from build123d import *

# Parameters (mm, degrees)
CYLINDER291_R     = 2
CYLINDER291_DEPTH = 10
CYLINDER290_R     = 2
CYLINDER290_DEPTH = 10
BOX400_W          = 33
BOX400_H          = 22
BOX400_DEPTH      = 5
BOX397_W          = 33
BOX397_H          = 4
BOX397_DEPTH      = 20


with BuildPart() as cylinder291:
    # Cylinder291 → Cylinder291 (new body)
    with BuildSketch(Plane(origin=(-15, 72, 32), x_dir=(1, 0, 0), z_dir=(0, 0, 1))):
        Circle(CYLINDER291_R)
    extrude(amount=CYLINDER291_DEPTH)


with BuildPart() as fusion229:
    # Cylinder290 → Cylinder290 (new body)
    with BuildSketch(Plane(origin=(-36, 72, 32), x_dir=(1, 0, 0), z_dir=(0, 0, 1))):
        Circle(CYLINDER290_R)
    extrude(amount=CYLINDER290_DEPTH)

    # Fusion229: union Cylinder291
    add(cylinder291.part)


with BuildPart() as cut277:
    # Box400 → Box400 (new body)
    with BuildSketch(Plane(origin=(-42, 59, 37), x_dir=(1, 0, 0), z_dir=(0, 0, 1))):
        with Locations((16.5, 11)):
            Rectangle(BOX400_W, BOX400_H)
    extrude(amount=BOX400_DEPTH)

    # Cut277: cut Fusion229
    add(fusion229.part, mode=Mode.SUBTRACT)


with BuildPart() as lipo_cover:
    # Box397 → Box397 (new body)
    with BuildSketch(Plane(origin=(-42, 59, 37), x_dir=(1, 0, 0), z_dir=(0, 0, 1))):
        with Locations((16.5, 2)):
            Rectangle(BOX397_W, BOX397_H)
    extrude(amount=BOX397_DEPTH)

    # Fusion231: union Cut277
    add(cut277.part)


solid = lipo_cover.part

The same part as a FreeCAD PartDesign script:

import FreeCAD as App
import Part
import Sketcher
Q = App.Units.Quantity


def add_polygon(sketch, points):
    """Adds a closed chain of lines whose ends are joined by coincident constraints."""
    first, n = sketch.GeometryCount, len(points)
    for a, b in zip(points, points[1:] + points[:1]):
        sketch.addGeometry(Part.LineSegment(App.Vector(*a, 0), App.Vector(*b, 0)), False)
    for i in range(n):
        sketch.addConstraint(Sketcher.Constraint("Coincident", first + i, 2, first + (i + 1) % n, 1))

doc = App.newDocument("Part")
body = doc.addObject("PartDesign::Body", "Body")

sketch1 = body.newObject("Sketcher::SketchObject", "Sketch")
sketch1.AttachmentSupport = (doc.getObject("XY_Plane"), [""])
sketch1.MapMode = "FlatFace"
sketch1.AttachmentOffset = App.Placement(App.Vector(0, 0, 32), App.Rotation())
sketch1.addGeometry(Part.Circle(App.Vector(-15, 72, 0), App.Vector(0, 0, 1), 2), False)
sketch1.addConstraint(Sketcher.Constraint("Diameter", 0, Q("4 mm")))
sketch1.addConstraint(Sketcher.Constraint("DistanceX", 0, 3, -1, 1, Q("15 mm")))
sketch1.addConstraint(Sketcher.Constraint("DistanceY", -1, 1, 0, 3, Q("72 mm")))
pad1 = body.newObject("PartDesign::Pad", "Pad")
pad1.Profile = sketch1
pad1.Length = 10
body2 = doc.addObject("PartDesign::Body", "Body001")
body2.AllowCompound = True

sketch2 = body2.newObject("Sketcher::SketchObject", "Sketch001")
sketch2.AttachmentSupport = (doc.getObject("XY_Plane001"), [""])
sketch2.MapMode = "FlatFace"
sketch2.AttachmentOffset = App.Placement(App.Vector(0, 0, 32), App.Rotation())
sketch2.addGeometry(Part.Circle(App.Vector(-36, 72, 0), App.Vector(0, 0, 1), 2), False)
sketch2.addConstraint(Sketcher.Constraint("Diameter", 0, Q("4 mm")))
sketch2.addConstraint(Sketcher.Constraint("DistanceX", 0, 3, -1, 1, Q("36 mm")))
sketch2.addConstraint(Sketcher.Constraint("DistanceY", -1, 1, 0, 3, Q("72 mm")))
pad2 = body2.newObject("PartDesign::Pad", "Pad001")
pad2.Profile = sketch2
pad2.Length = 10
doc.recompute()

boolean = body2.newObject("PartDesign::Boolean", "Boolean")
boolean.Type = "Fuse"
boolean.addObjects([body])
body3 = doc.addObject("PartDesign::Body", "Body002")

sketch3 = body3.newObject("Sketcher::SketchObject", "Sketch002")
sketch3.AttachmentSupport = (doc.getObject("XY_Plane002"), [""])
sketch3.MapMode = "FlatFace"
sketch3.AttachmentOffset = App.Placement(App.Vector(0, 0, 37), App.Rotation())
add_polygon(sketch3, [(-42, 81), (-42, 59), (-9, 59), (-9, 81)])
sketch3.addConstraint(Sketcher.Constraint("Vertical", 0))
sketch3.addConstraint(Sketcher.Constraint("Horizontal", 1))
sketch3.addConstraint(Sketcher.Constraint("Vertical", 2))
sketch3.addConstraint(Sketcher.Constraint("Horizontal", 3))
sketch3.addConstraint(Sketcher.Constraint("DistanceX", 1, 1, 1, 2, Q("33 mm")))
sketch3.addConstraint(Sketcher.Constraint("DistanceY", 0, 2, 0, 1, Q("22 mm")))
sketch3.addConstraint(Sketcher.Constraint("DistanceX", 0, 2, -1, 1, Q("42 mm")))
sketch3.addConstraint(Sketcher.Constraint("DistanceY", -1, 1, 0, 2, Q("59 mm")))
pad3 = body3.newObject("PartDesign::Pad", "Pad002")
pad3.Profile = sketch3
pad3.Length = 5
doc.recompute()

boolean2 = body3.newObject("PartDesign::Boolean", "Boolean001")
boolean2.Type = "Cut"
boolean2.addObjects([body2])
body4 = doc.addObject("PartDesign::Body", "Body003")

sketch4 = body4.newObject("Sketcher::SketchObject", "Sketch003")
sketch4.AttachmentSupport = (doc.getObject("XY_Plane003"), [""])
sketch4.MapMode = "FlatFace"
sketch4.AttachmentOffset = App.Placement(App.Vector(0, 0, 37), App.Rotation())
add_polygon(sketch4, [(-42, 63), (-42, 59), (-9, 59), (-9, 63)])
sketch4.addConstraint(Sketcher.Constraint("Vertical", 0))
sketch4.addConstraint(Sketcher.Constraint("Horizontal", 1))
sketch4.addConstraint(Sketcher.Constraint("Vertical", 2))
sketch4.addConstraint(Sketcher.Constraint("Horizontal", 3))
sketch4.addConstraint(Sketcher.Constraint("DistanceX", 1, 1, 1, 2, Q("33 mm")))
sketch4.addConstraint(Sketcher.Constraint("DistanceY", 0, 2, 0, 1, Q("4 mm")))
sketch4.addConstraint(Sketcher.Constraint("DistanceX", 0, 2, -1, 1, Q("42 mm")))
sketch4.addConstraint(Sketcher.Constraint("DistanceY", -1, 1, 0, 2, Q("59 mm")))
pad4 = body4.newObject("PartDesign::Pad", "Pad003")
pad4.Profile = sketch4
pad4.Length = 20
doc.recompute()

boolean3 = body4.newObject("PartDesign::Boolean", "Boolean002")
boolean3.Type = "Fuse"
boolean3.addObjects([body3])

doc.recompute()
